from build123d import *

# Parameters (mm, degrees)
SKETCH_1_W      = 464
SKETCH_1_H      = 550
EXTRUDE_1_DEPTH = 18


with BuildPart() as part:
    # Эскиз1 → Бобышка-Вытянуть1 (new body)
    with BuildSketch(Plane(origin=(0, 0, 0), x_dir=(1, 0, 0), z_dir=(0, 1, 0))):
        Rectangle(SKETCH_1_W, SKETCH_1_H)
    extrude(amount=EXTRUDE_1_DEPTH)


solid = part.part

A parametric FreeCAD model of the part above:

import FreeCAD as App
import Part
import Sketcher

doc = App.newDocument("Part")
params = doc.addObject("Spreadsheet::Sheet", "Params")
for row, (alias, value) in enumerate([
    ("sketch1_width", "464 mm"),
    ("sketch1_height", "550 mm"),
    ("pad1_length", "18 mm"),
], start=1):
    params.set(f"A{row}", alias)
    params.set(f"B{row}", "=" + value)
    params.setAlias(f"B{row}", alias)

body = doc.addObject("PartDesign::Body", "Body")

sketch1 = body.newObject("Sketcher::SketchObject", "Sketch")
sketch1.AttachmentSupport = (doc.getObject("XZ_Plane"), [""])
sketch1.MapMode = "FlatFace"
sketch1.addGeometry([
    Part.LineSegment(App.Vector(-232, -275, 0), App.Vector(-232, 275, 0)),
    Part.LineSegment(App.Vector(-232, 275, 0), App.Vector(232, 275, 0)),
    Part.LineSegment(App.Vector(232, 275, 0), App.Vector(232, -275, 0)),
    Part.LineSegment(App.Vector(232, -275, 0), App.Vector(-232, -275, 0)),
], False)
sketch1.addConstraint([
    Sketcher.Constraint("Coincident", 0, 2, 1, 1),
    Sketcher.Constraint("Coincident", 1, 2, 2, 1),
    Sketcher.Constraint("Coincident", 2, 2, 3, 1),
    Sketcher.Constraint("Coincident", 3, 2, 0, 1),
    Sketcher.Constraint("Vertical", 0),
    Sketcher.Constraint("Horizontal", 1),
    Sketcher.Constraint("Vertical", 2),
    Sketcher.Constraint("Horizontal", 3),
    Sketcher.Constraint("Symmetric", 0, 2, 2, 2, -1, 1),
    Sketcher.Constraint("DistanceX", 1, 1, 1, 2, 464.0),
    Sketcher.Constraint("DistanceY", 0, 1, 0, 2, 550.0),
])
sketch1.setExpression("Constraints[9]", "Params.sketch1_width")
sketch1.setExpression("Constraints[10]", "Params.sketch1_height")
pad1 = body.newObject("PartDesign::Pad", "Pad")
pad1.Profile = sketch1
pad1.setExpression("Length", "Params.pad1_length")
pad1.Reversed = True

doc.recompute()
